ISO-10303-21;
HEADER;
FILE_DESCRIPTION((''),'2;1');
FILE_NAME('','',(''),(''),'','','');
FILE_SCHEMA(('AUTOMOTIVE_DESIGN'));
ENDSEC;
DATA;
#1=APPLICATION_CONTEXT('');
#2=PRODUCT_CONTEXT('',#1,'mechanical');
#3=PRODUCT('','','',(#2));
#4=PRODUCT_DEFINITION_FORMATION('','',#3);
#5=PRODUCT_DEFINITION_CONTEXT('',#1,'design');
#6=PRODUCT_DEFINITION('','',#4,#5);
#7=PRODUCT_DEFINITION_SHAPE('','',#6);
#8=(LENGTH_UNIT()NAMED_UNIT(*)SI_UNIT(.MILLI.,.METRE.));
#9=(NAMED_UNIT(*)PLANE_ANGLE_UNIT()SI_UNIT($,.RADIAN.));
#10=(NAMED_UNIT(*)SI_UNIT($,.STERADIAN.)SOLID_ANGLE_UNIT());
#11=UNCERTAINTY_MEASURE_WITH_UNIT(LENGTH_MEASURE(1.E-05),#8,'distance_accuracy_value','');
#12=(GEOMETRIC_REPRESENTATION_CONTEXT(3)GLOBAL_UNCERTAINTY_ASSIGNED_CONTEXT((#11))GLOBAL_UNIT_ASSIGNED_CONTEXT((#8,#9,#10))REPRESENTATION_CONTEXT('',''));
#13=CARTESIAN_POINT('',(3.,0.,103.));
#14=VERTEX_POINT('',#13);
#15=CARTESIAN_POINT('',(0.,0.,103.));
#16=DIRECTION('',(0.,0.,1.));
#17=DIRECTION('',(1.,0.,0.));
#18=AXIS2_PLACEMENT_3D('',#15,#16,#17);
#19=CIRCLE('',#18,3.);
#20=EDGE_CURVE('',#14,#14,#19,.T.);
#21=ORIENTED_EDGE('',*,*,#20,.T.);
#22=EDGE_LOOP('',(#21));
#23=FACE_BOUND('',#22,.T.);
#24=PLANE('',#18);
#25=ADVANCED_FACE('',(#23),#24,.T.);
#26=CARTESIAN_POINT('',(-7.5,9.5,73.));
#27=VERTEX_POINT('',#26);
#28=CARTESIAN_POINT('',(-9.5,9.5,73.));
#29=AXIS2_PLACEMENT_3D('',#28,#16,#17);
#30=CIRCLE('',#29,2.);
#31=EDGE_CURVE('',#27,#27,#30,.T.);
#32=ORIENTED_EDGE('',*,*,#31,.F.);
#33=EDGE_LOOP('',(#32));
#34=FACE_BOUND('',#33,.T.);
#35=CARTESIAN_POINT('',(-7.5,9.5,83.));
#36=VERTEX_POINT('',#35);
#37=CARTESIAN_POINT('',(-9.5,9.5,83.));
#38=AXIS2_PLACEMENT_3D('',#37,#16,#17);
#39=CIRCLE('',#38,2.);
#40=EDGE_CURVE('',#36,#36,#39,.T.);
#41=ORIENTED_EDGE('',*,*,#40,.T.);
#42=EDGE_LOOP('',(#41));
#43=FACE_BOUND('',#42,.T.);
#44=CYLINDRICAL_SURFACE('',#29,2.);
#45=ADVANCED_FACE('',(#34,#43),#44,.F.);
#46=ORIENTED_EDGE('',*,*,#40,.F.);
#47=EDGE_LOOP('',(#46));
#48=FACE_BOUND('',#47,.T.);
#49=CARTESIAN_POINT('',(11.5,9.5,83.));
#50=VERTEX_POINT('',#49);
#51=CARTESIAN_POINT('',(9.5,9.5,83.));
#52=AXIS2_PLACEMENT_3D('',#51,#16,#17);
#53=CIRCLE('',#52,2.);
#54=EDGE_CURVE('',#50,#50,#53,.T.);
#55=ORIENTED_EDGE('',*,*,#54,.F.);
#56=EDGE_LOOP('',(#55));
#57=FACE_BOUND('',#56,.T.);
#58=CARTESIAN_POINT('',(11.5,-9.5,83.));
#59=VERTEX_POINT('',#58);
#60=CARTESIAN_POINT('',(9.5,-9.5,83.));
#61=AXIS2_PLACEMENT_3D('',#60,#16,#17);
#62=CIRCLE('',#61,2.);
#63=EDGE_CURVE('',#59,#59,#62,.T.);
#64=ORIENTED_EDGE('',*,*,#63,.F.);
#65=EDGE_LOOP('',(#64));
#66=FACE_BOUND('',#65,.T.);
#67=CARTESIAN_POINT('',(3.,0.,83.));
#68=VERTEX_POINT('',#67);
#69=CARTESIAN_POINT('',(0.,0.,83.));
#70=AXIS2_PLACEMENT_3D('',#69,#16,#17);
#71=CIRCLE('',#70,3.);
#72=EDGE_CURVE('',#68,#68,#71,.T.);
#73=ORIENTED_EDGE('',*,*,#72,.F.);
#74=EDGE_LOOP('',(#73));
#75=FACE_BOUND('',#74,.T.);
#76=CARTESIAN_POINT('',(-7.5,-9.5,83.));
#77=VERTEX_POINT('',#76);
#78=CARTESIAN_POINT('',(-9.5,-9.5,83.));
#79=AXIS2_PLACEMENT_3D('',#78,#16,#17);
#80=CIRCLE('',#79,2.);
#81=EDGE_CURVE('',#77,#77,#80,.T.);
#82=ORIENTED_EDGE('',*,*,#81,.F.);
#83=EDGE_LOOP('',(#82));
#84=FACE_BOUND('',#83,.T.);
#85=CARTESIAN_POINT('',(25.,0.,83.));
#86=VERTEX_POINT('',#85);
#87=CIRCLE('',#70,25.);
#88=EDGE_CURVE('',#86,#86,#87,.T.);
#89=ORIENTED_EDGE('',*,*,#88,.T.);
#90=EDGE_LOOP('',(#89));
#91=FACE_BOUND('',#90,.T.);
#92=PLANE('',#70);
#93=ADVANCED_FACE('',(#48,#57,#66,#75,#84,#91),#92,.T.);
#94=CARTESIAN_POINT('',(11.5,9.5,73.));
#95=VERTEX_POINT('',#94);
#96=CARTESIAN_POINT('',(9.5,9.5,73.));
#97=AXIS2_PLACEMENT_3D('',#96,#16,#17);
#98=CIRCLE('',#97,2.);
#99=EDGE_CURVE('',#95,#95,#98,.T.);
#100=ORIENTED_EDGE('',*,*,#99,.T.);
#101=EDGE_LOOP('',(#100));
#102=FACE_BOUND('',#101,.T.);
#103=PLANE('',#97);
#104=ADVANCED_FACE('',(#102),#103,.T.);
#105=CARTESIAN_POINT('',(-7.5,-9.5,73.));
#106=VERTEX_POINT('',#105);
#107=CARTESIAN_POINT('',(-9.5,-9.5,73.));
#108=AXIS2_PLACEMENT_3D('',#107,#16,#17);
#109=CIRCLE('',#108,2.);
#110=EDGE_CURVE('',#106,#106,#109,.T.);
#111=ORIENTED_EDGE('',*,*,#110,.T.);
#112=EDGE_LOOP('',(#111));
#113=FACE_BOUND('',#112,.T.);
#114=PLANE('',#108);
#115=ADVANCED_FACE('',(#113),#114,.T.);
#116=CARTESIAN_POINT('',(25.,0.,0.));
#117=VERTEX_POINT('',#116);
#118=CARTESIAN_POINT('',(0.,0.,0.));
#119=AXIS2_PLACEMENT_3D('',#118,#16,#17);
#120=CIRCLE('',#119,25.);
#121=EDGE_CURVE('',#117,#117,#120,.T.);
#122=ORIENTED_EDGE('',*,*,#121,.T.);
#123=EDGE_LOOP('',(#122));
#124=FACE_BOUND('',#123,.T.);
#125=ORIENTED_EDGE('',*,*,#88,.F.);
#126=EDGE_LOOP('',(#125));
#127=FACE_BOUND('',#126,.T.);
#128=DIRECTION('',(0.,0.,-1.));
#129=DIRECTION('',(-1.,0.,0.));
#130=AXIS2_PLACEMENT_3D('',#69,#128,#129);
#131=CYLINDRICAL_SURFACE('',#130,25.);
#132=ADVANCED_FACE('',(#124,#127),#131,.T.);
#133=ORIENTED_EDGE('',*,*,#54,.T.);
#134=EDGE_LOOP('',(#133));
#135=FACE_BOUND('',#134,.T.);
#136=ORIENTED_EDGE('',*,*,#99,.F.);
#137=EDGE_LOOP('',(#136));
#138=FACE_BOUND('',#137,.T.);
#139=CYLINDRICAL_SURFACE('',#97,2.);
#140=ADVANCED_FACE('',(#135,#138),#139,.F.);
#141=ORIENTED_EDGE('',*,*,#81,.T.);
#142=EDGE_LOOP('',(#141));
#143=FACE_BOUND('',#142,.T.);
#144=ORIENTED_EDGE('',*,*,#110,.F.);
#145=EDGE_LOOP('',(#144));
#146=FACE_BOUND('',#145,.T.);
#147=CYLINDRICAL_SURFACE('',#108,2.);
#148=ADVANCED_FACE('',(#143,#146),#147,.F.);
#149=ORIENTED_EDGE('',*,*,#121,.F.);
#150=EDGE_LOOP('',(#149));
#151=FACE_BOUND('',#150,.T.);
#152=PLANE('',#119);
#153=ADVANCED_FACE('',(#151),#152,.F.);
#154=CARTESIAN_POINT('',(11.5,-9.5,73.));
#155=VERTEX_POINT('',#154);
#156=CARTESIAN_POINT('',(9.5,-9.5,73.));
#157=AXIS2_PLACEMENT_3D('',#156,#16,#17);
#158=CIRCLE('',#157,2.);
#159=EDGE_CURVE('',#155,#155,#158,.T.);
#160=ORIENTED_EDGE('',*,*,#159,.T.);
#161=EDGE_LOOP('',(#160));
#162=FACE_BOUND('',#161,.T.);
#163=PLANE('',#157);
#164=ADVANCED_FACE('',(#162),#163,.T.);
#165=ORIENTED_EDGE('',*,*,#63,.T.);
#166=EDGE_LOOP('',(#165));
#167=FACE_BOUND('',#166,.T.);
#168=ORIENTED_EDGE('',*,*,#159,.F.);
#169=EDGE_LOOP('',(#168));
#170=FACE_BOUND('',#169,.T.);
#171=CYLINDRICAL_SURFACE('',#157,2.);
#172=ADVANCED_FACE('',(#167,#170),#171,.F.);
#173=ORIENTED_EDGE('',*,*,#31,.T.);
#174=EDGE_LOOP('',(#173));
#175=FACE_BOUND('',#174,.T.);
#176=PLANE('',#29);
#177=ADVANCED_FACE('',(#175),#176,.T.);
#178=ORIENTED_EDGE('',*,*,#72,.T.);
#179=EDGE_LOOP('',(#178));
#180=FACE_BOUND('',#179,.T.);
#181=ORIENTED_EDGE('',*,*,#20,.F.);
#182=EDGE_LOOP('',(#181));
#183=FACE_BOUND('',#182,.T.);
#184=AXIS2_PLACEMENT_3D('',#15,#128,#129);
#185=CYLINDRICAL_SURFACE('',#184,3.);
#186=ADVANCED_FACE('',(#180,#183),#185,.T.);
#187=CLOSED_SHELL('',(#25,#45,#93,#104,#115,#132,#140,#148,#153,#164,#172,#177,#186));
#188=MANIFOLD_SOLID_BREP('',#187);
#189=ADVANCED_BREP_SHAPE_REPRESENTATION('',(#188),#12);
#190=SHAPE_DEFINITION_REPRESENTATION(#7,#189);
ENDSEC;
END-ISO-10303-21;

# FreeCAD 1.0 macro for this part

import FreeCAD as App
import Part
import Sketcher

V = App.Vector

doc = App.newDocument("Part")
body = doc.addObject("PartDesign::Body", "Body")

sketch1 = body.newObject("Sketcher::SketchObject", "Sketch")
sketch1.AttachmentSupport = (doc.getObject("XY_Plane"), [""])
sketch1.MapMode = "FlatFace"
sketch1.addGeometry(Part.Circle(V(0, 0, 0), V(0, 0, 1), 25), False)
sketch1.addConstraint(Sketcher.Constraint("Coincident", 0, 3, -1, 1))
sketch1.addConstraint(Sketcher.Constraint("Diameter", 0, 50.0))
pad1 = body.newObject("PartDesign::Pad", "Pad")
pad1.Profile = sketch1
pad1.Length = 83

sketch2 = body.newObject("Sketcher::SketchObject", "Sketch001")
sketch2.AttachmentSupport = (doc.getObject("XY_Plane"), [""])
sketch2.MapMode = "FlatFace"
sketch2.AttachmentOffset = App.Placement(V(0, 0, 83), App.Rotation())
sketch2.addGeometry(Part.Circle(V(0, 0, 0), V(0, 0, 1), 3), False)
sketch2.addConstraint(Sketcher.Constraint("Coincident", 0, 3, -1, 1))
sketch2.addConstraint(Sketcher.Constraint("Diameter", 0, 6.0))
pad2 = body.newObject("PartDesign::Pad", "Pad001")
pad2.Profile = sketch2
pad2.Length = 20

sketch3 = body.newObject("Sketcher::SketchObject", "Sketch002")
sketch3.AttachmentSupport = (doc.getObject("XY_Plane"), [""])
sketch3.MapMode = "FlatFace"
sketch3.AttachmentOffset = App.Placement(V(0, 0, 83), App.Rotation())
sketch3.addGeometry(Part.Circle(V(-9.5, 9.5, 0), V(0, 0, 1), 2), False)
sketch3.addGeometry(Part.Circle(V(-9.5, -9.5, 0), V(0, 0, 1), 2), False)
sketch3.addGeometry(Part.Circle(V(9.5, -9.5, 0), V(0, 0, 1), 2), False)
sketch3.addGeometry(Part.Circle(V(9.5, 9.5, 0), V(0, 0, 1), 2), False)
sketch3.addConstraint(Sketcher.Constraint("Equal", 0, 1))
sketch3.addConstraint(Sketcher.Constraint("Equal", 1, 2))
sketch3.addConstraint(Sketcher.Constraint("Equal", 2, 3))
sketch3.addConstraint(Sketcher.Constraint("Symmetric", 0, 3, 2, 3, -1, 1))
sketch3.addConstraint(Sketcher.Constraint("Symmetric", 1, 3, 3, 3, -1, 1))
sketch3.addConstraint(Sketcher.Constraint("Symmetric", 1, 3, 2, 3, -2))
sketch3.addConstraint(Sketcher.Constraint("Diameter", 0, 4.0))
sketch3.addConstraint(Sketcher.Constraint("DistanceY", 1, 3, 0, 3, 19.0))
sketch3.addConstraint(Sketcher.Constraint("DistanceX", 1, 3, 2, 3, 19.0))
pocket1 = body.newObject("PartDesign::Pocket", "Pocket")
pocket1.Profile = sketch3
pocket1.Length = 10

doc.recompute()
